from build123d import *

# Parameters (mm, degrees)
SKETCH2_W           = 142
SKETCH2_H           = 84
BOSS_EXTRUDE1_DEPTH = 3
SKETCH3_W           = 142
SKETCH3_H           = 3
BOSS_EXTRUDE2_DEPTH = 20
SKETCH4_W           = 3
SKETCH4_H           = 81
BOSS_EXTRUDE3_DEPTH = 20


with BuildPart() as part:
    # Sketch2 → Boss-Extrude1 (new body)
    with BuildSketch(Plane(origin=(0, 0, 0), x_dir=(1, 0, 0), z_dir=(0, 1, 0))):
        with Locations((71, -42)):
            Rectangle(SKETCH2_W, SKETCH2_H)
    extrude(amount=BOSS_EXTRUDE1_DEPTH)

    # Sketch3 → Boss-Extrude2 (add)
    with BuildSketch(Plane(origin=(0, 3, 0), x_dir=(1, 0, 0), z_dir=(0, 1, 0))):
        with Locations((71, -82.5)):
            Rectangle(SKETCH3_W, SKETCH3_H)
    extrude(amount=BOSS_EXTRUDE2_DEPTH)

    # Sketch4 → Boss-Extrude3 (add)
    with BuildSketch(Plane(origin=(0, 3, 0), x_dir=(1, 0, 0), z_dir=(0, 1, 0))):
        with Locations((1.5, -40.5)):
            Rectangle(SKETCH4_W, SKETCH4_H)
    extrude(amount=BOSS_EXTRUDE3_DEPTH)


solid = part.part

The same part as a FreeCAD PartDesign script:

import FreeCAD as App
import Part
import Sketcher

V = App.Vector
Q = App.Units.Quantity

doc = App.newDocument("Part")
body = doc.addObject("PartDesign::Body", "Body")

sketch1 = body.newObject("Sketcher::SketchObject", "Sketch")
sketch1.AttachmentSupport = (doc.getObject("XZ_Plane"), [""])
sketch1.MapMode = "FlatFace"
sketch1.addGeometry(Part.LineSegment(V(0, 0, 0), V(0, 84, 0)), False)
sketch1.addGeometry(Part.LineSegment(V(0, 84, 0), V(142, 84, 0)), False)
sketch1.addGeometry(Part.LineSegment(V(142, 84, 0), V(142, 0, 0)), False)
sketch1.addGeometry(Part.LineSegment(V(142, 0, 0), V(0, 0, 0)), False)
sketch1.addConstraint(Sketcher.Constraint("Coincident", 0, 2, 1, 1))
sketch1.addConstraint(Sketcher.Constraint("Coincident", 1, 2, 2, 1))
sketch1.addConstraint(Sketcher.Constraint("Coincident", 2, 2, 3, 1))
sketch1.addConstraint(Sketcher.Constraint("Coincident", 3, 2, 0, 1))
sketch1.addConstraint(Sketcher.Constraint("Vertical", 0))
sketch1.addConstraint(Sketcher.Constraint("Horizontal", 1))
sketch1.addConstraint(Sketcher.Constraint("Vertical", 2))
sketch1.addConstraint(Sketcher.Constraint("Horizontal", 3))
sketch1.addConstraint(Sketcher.Constraint("Coincident", 3, 2, -1, 1))
sketch1.addConstraint(Sketcher.Constraint("DistanceX", 1, 1, 1, 2, Q("142 mm")))
sketch1.addConstraint(Sketcher.Constraint("DistanceY", 0, 1, 0, 2, Q("84 mm")))
pad1 = body.newObject("PartDesign::Pad", "Pad")
pad1.Profile = sketch1
pad1.Length = 3
pad1.Reversed = True

sketch2 = body.newObject("Sketcher::SketchObject", "Sketch001")
sketch2.AttachmentSupport = (doc.getObject("XZ_Plane"), [""])
sketch2.MapMode = "FlatFace"
sketch2.AttachmentOffset = App.Placement(V(0, 0, -3), App.Rotation())
sketch2.addGeometry(Part.LineSegment(V(0, 81, 0), V(0, 84, 0)), False)
sketch2.addGeometry(Part.LineSegment(V(0, 84, 0), V(142, 84, 0)), False)
sketch2.addGeometry(Part.LineSegment(V(142, 84, 0), V(142, 81, 0)), False)
sketch2.addGeometry(Part.LineSegment(V(142, 81, 0), V(0, 81, 0)), False)
sketch2.addConstraint(Sketcher.Constraint("Coincident", 0, 2, 1, 1))
sketch2.addConstraint(Sketcher.Constraint("Coincident", 1, 2, 2, 1))
sketch2.addConstraint(Sketcher.Constraint("Coincident", 2, 2, 3, 1))
sketch2.addConstraint(Sketcher.Constraint("Coincident", 3, 2, 0, 1))
sketch2.addConstraint(Sketcher.Constraint("Vertical", 0))
sketch2.addConstraint(Sketcher.Constraint("Horizontal", 1))
sketch2.addConstraint(Sketcher.Constraint("Vertical", 2))
sketch2.addConstraint(Sketcher.Constraint("Horizontal", 3))
sketch2.addConstraint(Sketcher.Constraint("PointOnObject", 0, 2, -2))
sketch2.addConstraint(Sketcher.Constraint("DistanceX", 1, 1, 1, 2, Q("142 mm")))
sketch2.addConstraint(Sketcher.Constraint("DistanceY", 0, 1, 0, 2, Q("3 mm")))
sketch2.addConstraint(Sketcher.Constraint("DistanceY", -1, 1, 0, 2, Q("84 mm")))
pad2 = body.newObject("PartDesign::Pad", "Pad001")
pad2.Profile = sketch2
pad2.Length = 20
pad2.Reversed = True

sketch3 = body.newObject("Sketcher::SketchObject", "Sketch002")
sketch3.AttachmentSupport = (doc.getObject("XZ_Plane"), [""])
sketch3.MapMode = "FlatFace"
sketch3.AttachmentOffset = App.Placement(V(0, 0, -3), App.Rotation())
sketch3.addGeometry(Part.LineSegment(V(0, 0, 0), V(0, 81, 0)), False)
sketch3.addGeometry(Part.LineSegment(V(0, 81, 0), V(3, 81, 0)), False)
sketch3.addGeometry(Part.LineSegment(V(3, 81, 0), V(3, 0, 0)), False)
sketch3.addGeometry(Part.LineSegment(V(3, 0, 0), V(0, 0, 0)), False)
sketch3.addConstraint(Sketcher.Constraint("Coincident", 0, 2, 1, 1))
sketch3.addConstraint(Sketcher.Constraint("Coincident", 1, 2, 2, 1))
sketch3.addConstraint(Sketcher.Constraint("Coincident", 2, 2, 3, 1))
sketch3.addConstraint(Sketcher.Constraint("Coincident", 3, 2, 0, 1))
sketch3.addConstraint(Sketcher.Constraint("Vertical", 0))
sketch3.addConstraint(Sketcher.Constraint("Horizontal", 1))
sketch3.addConstraint(Sketcher.Constraint("Vertical", 2))
sketch3.addConstraint(Sketcher.Constraint("Horizontal", 3))
sketch3.addConstraint(Sketcher.Constraint("Coincident", 3, 2, -1, 1))
sketch3.addConstraint(Sketcher.Constraint("DistanceX", 1, 1, 1, 2, Q("3 mm")))
sketch3.addConstraint(Sketcher.Constraint("DistanceY", 0, 1, 0, 2, Q("81 mm")))
pad3 = body.newObject("PartDesign::Pad", "Pad002")
pad3.Profile = sketch3
pad3.Length = 20
pad3.Reversed = True

doc.recompute()
